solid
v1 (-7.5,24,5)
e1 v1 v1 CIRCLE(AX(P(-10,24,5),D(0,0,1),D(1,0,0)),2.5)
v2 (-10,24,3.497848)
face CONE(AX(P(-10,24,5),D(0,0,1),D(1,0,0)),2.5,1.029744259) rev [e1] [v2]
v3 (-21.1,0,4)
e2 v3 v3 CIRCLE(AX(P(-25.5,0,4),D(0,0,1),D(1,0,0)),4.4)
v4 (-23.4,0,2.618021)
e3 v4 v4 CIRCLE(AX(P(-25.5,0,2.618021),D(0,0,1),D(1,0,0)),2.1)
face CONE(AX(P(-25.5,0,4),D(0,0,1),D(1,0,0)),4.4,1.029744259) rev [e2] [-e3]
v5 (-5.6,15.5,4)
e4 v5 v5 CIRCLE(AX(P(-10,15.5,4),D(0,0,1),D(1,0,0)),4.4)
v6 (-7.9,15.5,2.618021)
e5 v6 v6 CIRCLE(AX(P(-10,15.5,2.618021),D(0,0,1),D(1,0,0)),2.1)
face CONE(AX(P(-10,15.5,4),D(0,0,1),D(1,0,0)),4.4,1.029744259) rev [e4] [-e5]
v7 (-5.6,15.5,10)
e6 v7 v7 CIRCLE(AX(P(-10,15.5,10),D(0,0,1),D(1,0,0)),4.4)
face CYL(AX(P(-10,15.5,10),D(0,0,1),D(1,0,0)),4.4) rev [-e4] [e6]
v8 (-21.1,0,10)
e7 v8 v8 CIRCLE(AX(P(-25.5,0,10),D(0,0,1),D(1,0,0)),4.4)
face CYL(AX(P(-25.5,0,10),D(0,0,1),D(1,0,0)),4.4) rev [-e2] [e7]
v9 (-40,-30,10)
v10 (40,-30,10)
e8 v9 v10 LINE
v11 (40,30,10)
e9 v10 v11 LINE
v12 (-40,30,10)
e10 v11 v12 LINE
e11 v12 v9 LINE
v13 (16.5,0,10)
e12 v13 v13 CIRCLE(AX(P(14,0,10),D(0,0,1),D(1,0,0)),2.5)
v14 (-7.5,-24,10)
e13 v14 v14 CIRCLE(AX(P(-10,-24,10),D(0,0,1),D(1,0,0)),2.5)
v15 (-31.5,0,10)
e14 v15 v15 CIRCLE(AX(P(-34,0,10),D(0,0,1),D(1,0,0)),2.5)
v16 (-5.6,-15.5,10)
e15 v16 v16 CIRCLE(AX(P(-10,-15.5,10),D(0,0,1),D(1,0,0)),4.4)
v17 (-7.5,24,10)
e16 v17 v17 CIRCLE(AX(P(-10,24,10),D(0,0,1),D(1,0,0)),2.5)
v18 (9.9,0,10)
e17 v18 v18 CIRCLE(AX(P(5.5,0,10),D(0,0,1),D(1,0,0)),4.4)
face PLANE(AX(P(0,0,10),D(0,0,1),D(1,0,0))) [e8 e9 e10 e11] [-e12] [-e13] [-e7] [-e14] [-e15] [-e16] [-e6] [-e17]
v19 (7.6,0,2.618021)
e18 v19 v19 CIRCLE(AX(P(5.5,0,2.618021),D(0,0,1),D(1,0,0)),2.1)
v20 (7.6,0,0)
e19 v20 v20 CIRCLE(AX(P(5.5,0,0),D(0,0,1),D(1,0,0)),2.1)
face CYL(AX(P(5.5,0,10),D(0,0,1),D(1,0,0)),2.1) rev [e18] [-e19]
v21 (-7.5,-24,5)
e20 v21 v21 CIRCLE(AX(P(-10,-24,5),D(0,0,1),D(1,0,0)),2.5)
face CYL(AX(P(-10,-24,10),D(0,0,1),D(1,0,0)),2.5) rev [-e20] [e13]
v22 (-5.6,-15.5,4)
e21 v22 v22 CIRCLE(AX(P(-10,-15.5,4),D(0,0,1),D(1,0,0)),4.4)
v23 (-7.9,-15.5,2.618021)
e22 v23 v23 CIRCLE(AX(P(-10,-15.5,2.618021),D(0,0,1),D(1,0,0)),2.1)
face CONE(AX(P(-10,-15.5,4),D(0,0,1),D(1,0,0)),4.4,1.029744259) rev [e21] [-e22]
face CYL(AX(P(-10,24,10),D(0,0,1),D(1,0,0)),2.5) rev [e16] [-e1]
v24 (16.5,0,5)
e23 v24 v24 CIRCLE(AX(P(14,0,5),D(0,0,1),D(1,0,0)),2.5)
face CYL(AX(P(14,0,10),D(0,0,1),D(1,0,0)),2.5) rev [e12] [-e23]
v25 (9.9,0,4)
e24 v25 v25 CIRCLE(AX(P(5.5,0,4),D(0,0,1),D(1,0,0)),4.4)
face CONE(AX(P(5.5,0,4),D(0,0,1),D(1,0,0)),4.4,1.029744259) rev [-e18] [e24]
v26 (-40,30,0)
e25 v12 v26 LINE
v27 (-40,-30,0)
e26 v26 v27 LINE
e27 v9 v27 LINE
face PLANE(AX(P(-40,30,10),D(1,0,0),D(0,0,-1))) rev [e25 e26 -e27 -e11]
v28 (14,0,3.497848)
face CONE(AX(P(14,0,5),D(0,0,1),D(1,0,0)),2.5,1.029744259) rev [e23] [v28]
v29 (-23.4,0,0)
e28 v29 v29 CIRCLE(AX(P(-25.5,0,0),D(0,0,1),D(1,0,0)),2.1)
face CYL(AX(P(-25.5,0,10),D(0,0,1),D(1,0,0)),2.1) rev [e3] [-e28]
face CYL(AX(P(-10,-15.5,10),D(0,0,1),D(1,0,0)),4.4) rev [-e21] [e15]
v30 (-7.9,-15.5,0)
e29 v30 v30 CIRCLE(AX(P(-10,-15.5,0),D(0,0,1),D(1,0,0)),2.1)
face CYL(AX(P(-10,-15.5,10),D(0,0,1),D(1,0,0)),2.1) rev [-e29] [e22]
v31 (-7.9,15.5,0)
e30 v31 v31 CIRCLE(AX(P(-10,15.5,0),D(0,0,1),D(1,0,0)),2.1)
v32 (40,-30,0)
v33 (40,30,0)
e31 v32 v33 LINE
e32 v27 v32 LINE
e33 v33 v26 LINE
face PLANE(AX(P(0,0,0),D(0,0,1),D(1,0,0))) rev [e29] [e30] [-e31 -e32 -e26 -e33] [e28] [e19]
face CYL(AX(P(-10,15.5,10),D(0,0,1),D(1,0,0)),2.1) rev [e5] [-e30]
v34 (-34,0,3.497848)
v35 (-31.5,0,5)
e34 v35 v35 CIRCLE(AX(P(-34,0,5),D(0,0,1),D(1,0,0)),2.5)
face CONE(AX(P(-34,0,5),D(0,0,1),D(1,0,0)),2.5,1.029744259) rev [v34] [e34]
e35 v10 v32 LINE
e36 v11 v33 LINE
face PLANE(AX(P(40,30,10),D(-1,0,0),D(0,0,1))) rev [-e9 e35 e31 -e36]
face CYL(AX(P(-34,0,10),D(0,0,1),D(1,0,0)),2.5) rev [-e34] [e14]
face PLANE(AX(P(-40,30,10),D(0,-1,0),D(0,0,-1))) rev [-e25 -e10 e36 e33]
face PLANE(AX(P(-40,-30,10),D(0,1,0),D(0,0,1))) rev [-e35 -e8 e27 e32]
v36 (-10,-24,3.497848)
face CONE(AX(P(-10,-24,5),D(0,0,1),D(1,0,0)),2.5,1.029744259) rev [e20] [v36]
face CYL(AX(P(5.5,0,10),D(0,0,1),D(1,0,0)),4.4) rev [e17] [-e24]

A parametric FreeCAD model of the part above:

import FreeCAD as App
import Part
import Sketcher
from FreeCAD import Vector
Q = App.Units.Quantity


def add_polygon(sketch, points):
    """Adds a closed chain of lines whose ends are joined by coincident constraints."""
    first, n = sketch.GeometryCount, len(points)
    for a, b in zip(points, points[1:] + points[:1]):
        sketch.addGeometry(Part.LineSegment(App.Vector(*a, 0), App.Vector(*b, 0)), False)
    for i in range(n):
        sketch.addConstraint(Sketcher.Constraint("Coincident", first + i, 2, first + (i + 1) % n, 1))

doc = App.newDocument("Part")
params = doc.addObject("Spreadsheet::Sheet", "Params")
for row, (alias, value) in enumerate([
    ("sketch1_width", "80 mm"),
    ("sketch1_height", "60 mm"),
    ("pad1_length", "10 mm"),
    ("sketch2_diameter", "4.2 mm"),
    ("hole_diameter", "4.2 mm"),
    ("sketch3_diameter", "8.8 mm"),
    ("hole2_diameter", "8.8 mm"),
    ("hole2_depth", "6 mm"),
    ("sketch4_diameter", "5 mm"),
    ("hole3_diameter", "5 mm"),
    ("hole3_depth", "5 mm"),
], start=1):
    params.set(f"A{row}", alias)
    params.set(f"B{row}", "=" + value)
    params.setAlias(f"B{row}", alias)

body = doc.addObject("PartDesign::Body", "Body")

# Sketch on XY plane
sketch1 = body.newObject("Sketcher::SketchObject", "Sketch")
sketch1.AttachmentSupport = (doc.getObject("XY_Plane"), [""])
sketch1.MapMode = "FlatFace"
add_polygon(sketch1, [(-40, 30), (-40, -30), (40, -30), (40, 30)])  # lines 0-3
sketch1.addConstraint(Sketcher.Constraint("Vertical", 0))
sketch1.addConstraint(Sketcher.Constraint("Horizontal", 1))
sketch1.addConstraint(Sketcher.Constraint("Vertical", 2))
sketch1.addConstraint(Sketcher.Constraint("Horizontal", 3))
sketch1.addConstraint(Sketcher.Constraint("Symmetric", 0, 2, 2, 2, -1, 1))
sketch1.addConstraint(Sketcher.Constraint("DistanceX", 1, 1, 1, 2, Q("80 mm")))
sketch1.addConstraint(Sketcher.Constraint("DistanceY", 0, 2, 0, 1, Q("60 mm")))
sketch1.setExpression("Constraints[9]", "Params.sketch1_width")
sketch1.setExpression("Constraints[10]", "Params.sketch1_height")
pad1 = body.newObject("PartDesign::Pad", "Pad")
pad1.Profile = sketch1
pad1.setExpression("Length", "Params.pad1_length")

# Sketch on XY plane
sketch2 = body.newObject("Sketcher::SketchObject", "Sketch001")
sketch2.AttachmentSupport = (doc.getObject("XY_Plane"), [""])
sketch2.MapMode = "FlatFace"
sketch2.AttachmentOffset = App.Placement(Vector(0, 0, 10), App.Rotation())
sketch2.addGeometry(Part.Circle(Vector(-25.5, 0, 0), Vector(0, 0, 1), 2.1), False)
sketch2.addGeometry(Part.Circle(Vector(-10, -15.5, 0), Vector(0, 0, 1), 2.1), False)
sketch2.addGeometry(Part.Circle(Vector(5.5, 0, 0), Vector(0, 0, 1), 2.1), False)
sketch2.addGeometry(Part.Circle(Vector(-10, 15.5, 0), Vector(0, 0, 1), 2.1), False)
sketch2.addConstraint(Sketcher.Constraint("Equal", 0, 1))
sketch2.addConstraint(Sketcher.Constraint("Equal", 1, 2))
sketch2.addConstraint(Sketcher.Constraint("Equal", 2, 3))
sketch2.addConstraint(Sketcher.Constraint("Symmetric", 1, 3, 3, 3, -1))
sketch2.addConstraint(Sketcher.Constraint("PointOnObject", 0, 3, -1))
sketch2.addConstraint(Sketcher.Constraint("PointOnObject", 2, 3, -1))
sketch2.addConstraint(Sketcher.Constraint("Diameter", 0, Q("4.2 mm")))
sketch2.addConstraint(Sketcher.Constraint("DistanceX", 1, 3, -1, 1, Q("10 mm")))
sketch2.addConstraint(Sketcher.Constraint("DistanceX", 0, 3, 2, 3, Q("31 mm")))
sketch2.addConstraint(Sketcher.Constraint("DistanceY", 1, 3, 3, 3, Q("31 mm")))
sketch2.addConstraint(Sketcher.Constraint("DistanceX", 0, 3, -1, 1, Q("25.5 mm")))
sketch2.setExpression("Constraints[6]", "Params.sketch2_diameter")
doc.recompute()
hole = body.newObject("PartDesign::Hole", "Hole")
hole.Profile = sketch2
hole.ThreadType = "None"
hole.setExpression("Diameter", "Params.hole_diameter")
hole.DepthType = "ThroughAll"

# Sketch on XY plane
sketch3 = body.newObject("Sketcher::SketchObject", "Sketch002")
sketch3.AttachmentSupport = (doc.getObject("XY_Plane"), [""])
sketch3.MapMode = "FlatFace"
sketch3.AttachmentOffset = App.Placement(Vector(0, 0, 10), App.Rotation())
sketch3.addGeometry(Part.Circle(Vector(-25.5, 0, 0), Vector(0, 0, 1), 4.4), False)
sketch3.addGeometry(Part.Circle(Vector(-10, 15.5, 0), Vector(0, 0, 1), 4.4), False)
sketch3.addGeometry(Part.Circle(Vector(5.5, 0, 0), Vector(0, 0, 1), 4.4), False)
sketch3.addGeometry(Part.Circle(Vector(-10, -15.5, 0), Vector(0, 0, 1), 4.4), False)
sketch3.addConstraint(Sketcher.Constraint("Equal", 0, 1))
sketch3.addConstraint(Sketcher.Constraint("Equal", 1, 2))
sketch3.addConstraint(Sketcher.Constraint("Equal", 2, 3))
sketch3.addConstraint(Sketcher.Constraint("Symmetric", 1, 3, 3, 3, -1))
sketch3.addConstraint(Sketcher.Constraint("PointOnObject", 0, 3, -1))
sketch3.addConstraint(Sketcher.Constraint("PointOnObject", 2, 3, -1))
sketch3.addConstraint(Sketcher.Constraint("Diameter", 0, Q("8.8 mm")))
sketch3.addConstraint(Sketcher.Constraint("DistanceX", 1, 3, -1, 1, Q("10 mm")))
sketch3.addConstraint(Sketcher.Constraint("DistanceX", 0, 3, 2, 3, Q("31 mm")))
sketch3.addConstraint(Sketcher.Constraint("DistanceY", 3, 3, 1, 3, Q("31 mm")))
sketch3.addConstraint(Sketcher.Constraint("DistanceX", 0, 3, -1, 1, Q("25.5 mm")))
sketch3.setExpression("Constraints[6]", "Params.sketch3_diameter")
doc.recompute()
hole2 = body.newObject("PartDesign::Hole", "Hole001")
hole2.Profile = sketch3
hole2.ThreadType = "None"
hole2.setExpression("Diameter", "Params.hole2_diameter")
hole2.DepthType = "Dimension"
hole2.setExpression("Depth", "Params.hole2_depth")
hole2.DrillPoint = "Angled"
hole2.DrillPointAngle = 118

# Sketch on XY plane
sketch4 = body.newObject("Sketcher::SketchObject", "Sketch003")
sketch4.AttachmentSupport = (doc.getObject("XY_Plane"), [""])
sketch4.MapMode = "FlatFace"
sketch4.AttachmentOffset = App.Placement(Vector(0, 0, 10), App.Rotation())
sketch4.addGeometry(Part.Circle(Vector(-10, 24, 0), Vector(0, 0, 1), 2.5), False)
sketch4.addGeometry(Part.Circle(Vector(-34, 0, 0), Vector(0, 0, 1), 2.5), False)
sketch4.addGeometry(Part.Circle(Vector(-10, -24, 0), Vector(0, 0, 1), 2.5), False)
sketch4.addGeometry(Part.Circle(Vector(14, 0, 0), Vector(0, 0, 1), 2.5), False)
sketch4.addConstraint(Sketcher.Constraint("Equal", 0, 1))
sketch4.addConstraint(Sketcher.Constraint("Equal", 1, 2))
sketch4.addConstraint(Sketcher.Constraint("Equal", 2, 3))
sketch4.addConstraint(Sketcher.Constraint("Symmetric", 0, 3, 2, 3, -1))
sketch4.addConstraint(Sketcher.Constraint("PointOnObject", 1, 3, -1))
sketch4.addConstraint(Sketcher.Constraint("PointOnObject", 3, 3, -1))
sketch4.addConstraint(Sketcher.Constraint("Diameter", 0, Q("5 mm")))
sketch4.addConstraint(Sketcher.Constraint("DistanceX", 0, 3, -1, 1, Q("10 mm")))
sketch4.addConstraint(Sketcher.Constraint("DistanceY", -1, 1, 0, 3, Q("24 mm")))
sketch4.addConstraint(Sketcher.Constraint("DistanceX", 1, 3, -1, 1, Q("34 mm")))
sketch4.addConstraint(Sketcher.Constraint("DistanceX", -1, 1, 3, 3, Q("14 mm")))
sketch4.setExpression("Constraints[6]", "Params.sketch4_diameter")
doc.recompute()
hole3 = body.newObject("PartDesign::Hole", "Hole002")
hole3.Profile = sketch4
hole3.ThreadType = "None"
hole3.setExpression("Diameter", "Params.hole3_diameter")
hole3.DepthType = "Dimension"
hole3.setExpression("Depth", "Params.hole3_depth")
hole3.DrillPoint = "Angled"
hole3.DrillPointAngle = 118

doc.recompute()
